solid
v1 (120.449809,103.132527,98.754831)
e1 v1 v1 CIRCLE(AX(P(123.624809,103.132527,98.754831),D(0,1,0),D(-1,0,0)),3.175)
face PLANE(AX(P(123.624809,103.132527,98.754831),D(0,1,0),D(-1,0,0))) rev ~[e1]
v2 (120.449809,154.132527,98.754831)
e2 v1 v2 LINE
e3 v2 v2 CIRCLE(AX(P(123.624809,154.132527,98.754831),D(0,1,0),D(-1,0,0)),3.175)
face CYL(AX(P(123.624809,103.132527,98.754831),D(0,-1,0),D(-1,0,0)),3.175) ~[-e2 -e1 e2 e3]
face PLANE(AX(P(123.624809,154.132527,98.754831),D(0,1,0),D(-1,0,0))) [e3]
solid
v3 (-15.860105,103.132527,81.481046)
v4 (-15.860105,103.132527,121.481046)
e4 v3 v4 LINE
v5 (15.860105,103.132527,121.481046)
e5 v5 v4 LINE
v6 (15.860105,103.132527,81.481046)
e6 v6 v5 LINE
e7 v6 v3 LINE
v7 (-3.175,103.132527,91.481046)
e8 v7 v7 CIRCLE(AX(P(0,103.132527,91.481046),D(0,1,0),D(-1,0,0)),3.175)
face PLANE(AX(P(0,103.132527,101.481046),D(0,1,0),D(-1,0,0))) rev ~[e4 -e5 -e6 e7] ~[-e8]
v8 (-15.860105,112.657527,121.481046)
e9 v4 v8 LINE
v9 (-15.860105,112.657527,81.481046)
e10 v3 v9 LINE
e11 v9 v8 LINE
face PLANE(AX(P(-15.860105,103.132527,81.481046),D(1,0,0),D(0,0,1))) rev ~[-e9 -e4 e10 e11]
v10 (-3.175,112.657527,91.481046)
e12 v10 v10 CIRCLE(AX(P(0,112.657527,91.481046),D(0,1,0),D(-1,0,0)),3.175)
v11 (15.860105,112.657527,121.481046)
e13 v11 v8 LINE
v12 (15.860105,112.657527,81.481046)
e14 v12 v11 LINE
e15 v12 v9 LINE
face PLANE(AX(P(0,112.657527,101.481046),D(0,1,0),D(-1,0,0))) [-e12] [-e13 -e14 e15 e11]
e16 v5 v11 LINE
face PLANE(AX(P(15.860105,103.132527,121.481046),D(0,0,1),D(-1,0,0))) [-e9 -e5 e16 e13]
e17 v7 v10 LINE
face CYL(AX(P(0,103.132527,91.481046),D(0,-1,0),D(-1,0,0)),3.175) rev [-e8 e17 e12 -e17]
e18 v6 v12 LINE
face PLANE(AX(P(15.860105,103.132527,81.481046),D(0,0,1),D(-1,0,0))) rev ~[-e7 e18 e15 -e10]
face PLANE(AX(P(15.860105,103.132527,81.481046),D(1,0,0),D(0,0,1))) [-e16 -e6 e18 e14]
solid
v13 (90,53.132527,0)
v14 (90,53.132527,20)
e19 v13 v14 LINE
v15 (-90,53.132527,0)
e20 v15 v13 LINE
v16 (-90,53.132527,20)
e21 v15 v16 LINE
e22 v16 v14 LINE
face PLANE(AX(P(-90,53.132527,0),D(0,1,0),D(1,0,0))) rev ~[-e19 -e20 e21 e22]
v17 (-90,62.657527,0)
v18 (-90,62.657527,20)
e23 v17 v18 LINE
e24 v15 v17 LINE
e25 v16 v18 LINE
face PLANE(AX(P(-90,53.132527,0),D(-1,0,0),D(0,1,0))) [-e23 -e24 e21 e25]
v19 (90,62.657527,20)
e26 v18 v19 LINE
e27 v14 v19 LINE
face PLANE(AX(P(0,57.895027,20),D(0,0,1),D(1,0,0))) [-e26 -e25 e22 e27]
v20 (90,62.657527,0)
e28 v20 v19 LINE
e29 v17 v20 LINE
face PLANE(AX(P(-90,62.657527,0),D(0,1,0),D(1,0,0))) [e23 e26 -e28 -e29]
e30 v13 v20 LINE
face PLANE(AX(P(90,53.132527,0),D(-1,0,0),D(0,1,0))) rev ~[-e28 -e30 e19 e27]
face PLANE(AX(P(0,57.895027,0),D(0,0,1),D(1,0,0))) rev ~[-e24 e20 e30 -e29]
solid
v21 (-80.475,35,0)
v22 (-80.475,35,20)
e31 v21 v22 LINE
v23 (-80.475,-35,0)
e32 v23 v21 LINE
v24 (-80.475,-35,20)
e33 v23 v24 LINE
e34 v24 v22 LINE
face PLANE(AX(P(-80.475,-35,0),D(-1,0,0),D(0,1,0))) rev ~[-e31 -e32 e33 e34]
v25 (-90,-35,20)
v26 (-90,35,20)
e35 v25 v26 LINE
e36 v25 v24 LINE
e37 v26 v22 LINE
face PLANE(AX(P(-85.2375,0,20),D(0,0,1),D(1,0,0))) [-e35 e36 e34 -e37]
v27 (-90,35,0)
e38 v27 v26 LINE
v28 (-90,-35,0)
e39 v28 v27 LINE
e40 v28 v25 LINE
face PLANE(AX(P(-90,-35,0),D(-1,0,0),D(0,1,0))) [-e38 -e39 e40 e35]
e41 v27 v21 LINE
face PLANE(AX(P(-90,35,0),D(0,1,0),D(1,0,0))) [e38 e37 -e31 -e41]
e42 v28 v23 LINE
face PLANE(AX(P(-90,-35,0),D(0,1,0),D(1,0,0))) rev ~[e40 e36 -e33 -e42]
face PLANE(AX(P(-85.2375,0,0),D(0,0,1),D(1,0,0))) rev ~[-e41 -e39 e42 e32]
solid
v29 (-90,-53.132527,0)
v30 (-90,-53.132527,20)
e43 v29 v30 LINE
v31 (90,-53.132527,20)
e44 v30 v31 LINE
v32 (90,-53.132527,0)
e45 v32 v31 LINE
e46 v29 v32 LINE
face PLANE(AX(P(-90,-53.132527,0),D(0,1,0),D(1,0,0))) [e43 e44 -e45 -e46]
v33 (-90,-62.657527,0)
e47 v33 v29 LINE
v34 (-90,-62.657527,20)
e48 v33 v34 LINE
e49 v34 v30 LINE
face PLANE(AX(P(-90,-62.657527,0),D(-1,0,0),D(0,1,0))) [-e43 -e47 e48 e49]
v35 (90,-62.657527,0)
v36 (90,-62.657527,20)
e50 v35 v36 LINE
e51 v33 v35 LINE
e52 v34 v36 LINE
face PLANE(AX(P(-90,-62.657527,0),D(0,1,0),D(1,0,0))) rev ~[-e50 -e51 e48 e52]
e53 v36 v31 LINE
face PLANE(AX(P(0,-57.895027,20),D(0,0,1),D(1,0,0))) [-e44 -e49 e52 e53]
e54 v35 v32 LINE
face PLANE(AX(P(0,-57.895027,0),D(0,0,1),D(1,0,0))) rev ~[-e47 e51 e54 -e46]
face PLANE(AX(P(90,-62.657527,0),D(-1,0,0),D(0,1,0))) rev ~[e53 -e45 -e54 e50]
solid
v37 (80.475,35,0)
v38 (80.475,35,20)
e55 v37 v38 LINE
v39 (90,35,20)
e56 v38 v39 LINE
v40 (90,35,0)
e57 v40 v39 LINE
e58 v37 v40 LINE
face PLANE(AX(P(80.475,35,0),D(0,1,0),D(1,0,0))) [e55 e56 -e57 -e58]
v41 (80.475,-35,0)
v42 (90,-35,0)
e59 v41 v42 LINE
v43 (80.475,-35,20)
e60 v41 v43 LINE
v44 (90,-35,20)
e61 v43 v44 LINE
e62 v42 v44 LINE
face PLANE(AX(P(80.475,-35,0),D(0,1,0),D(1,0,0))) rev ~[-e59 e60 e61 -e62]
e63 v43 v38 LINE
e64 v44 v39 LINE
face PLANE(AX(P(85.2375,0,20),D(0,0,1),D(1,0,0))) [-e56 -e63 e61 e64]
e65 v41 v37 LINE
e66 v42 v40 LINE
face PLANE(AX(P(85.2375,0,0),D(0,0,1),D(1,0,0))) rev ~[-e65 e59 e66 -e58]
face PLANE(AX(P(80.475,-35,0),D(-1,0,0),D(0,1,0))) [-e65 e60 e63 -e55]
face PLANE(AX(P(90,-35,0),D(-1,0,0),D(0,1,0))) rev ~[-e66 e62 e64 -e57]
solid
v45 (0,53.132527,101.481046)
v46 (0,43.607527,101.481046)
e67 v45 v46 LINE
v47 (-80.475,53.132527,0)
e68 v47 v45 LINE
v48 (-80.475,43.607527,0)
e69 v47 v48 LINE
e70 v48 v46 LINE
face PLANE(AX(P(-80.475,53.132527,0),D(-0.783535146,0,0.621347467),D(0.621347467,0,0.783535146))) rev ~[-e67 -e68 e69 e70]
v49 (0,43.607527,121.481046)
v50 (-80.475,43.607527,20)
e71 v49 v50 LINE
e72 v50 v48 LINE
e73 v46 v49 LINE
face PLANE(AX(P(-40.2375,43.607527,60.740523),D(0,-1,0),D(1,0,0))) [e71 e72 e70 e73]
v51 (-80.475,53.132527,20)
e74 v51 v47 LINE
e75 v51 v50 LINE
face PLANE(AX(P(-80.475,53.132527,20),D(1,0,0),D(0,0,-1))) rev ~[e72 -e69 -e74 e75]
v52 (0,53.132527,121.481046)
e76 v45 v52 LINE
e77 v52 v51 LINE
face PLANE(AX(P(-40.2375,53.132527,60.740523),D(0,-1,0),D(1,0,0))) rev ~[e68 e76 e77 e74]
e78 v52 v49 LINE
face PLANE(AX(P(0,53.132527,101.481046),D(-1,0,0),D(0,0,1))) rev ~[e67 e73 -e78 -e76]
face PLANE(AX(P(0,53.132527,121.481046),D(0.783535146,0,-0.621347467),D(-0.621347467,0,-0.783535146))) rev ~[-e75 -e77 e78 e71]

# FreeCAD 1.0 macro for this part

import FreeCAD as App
import Part
import Sketcher

V = App.Vector


def add_polygon(sketch, points):
    """Adds a closed chain of lines whose ends are joined by coincident constraints."""
    first, n = sketch.GeometryCount, len(points)
    for a, b in zip(points, points[1:] + points[:1]):
        sketch.addGeometry(Part.LineSegment(App.Vector(*a, 0), App.Vector(*b, 0)), False)
    for i in range(n):
        sketch.addConstraint(Sketcher.Constraint("Coincident", first + i, 2, first + (i + 1) % n, 1))

doc = App.newDocument("Part")
body = doc.addObject("PartDesign::Body", "Body")

sketch1 = body.newObject("Sketcher::SketchObject", "Sketch")
sketch1.AttachmentSupport = (doc.getObject("XY_Plane"), [""])
sketch1.MapMode = "FlatFace"
add_polygon(sketch1, [(-90, 62.657527), (-90, 53.132527), (90, 53.132527), (90, 62.657527)])
sketch1.addConstraint([
    Sketcher.Constraint("Vertical", 0),
    Sketcher.Constraint("Horizontal", 1),
    Sketcher.Constraint("Vertical", 2),
    Sketcher.Constraint("Horizontal", 3),
    Sketcher.Constraint("DistanceX", 1, 1, 1, 2, 180.0),
    Sketcher.Constraint("DistanceX", 0, 2, -1, 1, 90.0),
    Sketcher.Constraint("DistanceY", 0, 2, 0, 1, 9.525),
    Sketcher.Constraint("DistanceY", -1, 1, 0, 2, 53.132527),
])
pad1 = body.newObject("PartDesign::Pad", "Pad")
pad1.Profile = sketch1
pad1.Length = 20
body2 = doc.addObject("PartDesign::Body", "Body001")

sketch2 = body2.newObject("Sketcher::SketchObject", "Sketch001")
sketch2.AttachmentSupport = (doc.getObject("XY_Plane001"), [""])
sketch2.MapMode = "FlatFace"
add_polygon(sketch2, [(-90, 35), (-90, -35), (-80.475, -35), (-80.475, 35)])
sketch2.addConstraint([
    Sketcher.Constraint("Vertical", 0),
    Sketcher.Constraint("Horizontal", 1),
    Sketcher.Constraint("Vertical", 2),
    Sketcher.Constraint("Horizontal", 3),
    Sketcher.Constraint("DistanceY", 0, 2, 0, 1, 70.0),
    Sketcher.Constraint("DistanceX", 0, 2, -1, 1, 90.0),
    Sketcher.Constraint("DistanceY", 0, 2, -1, 1, 35.0),
    Sketcher.Constraint("DistanceX", 1, 1, 1, 2, 9.525),
])
pad2 = body2.newObject("PartDesign::Pad", "Pad001")
pad2.Profile = sketch2
pad2.Length = 20
body3 = doc.addObject("PartDesign::Body", "Body002")

sketch3 = body3.newObject("Sketcher::SketchObject", "Sketch002")
sketch3.AttachmentSupport = (doc.getObject("XY_Plane002"), [""])
sketch3.MapMode = "FlatFace"
add_polygon(sketch3, [(-90, -53.132527), (-90, -62.657527), (90, -62.657527), (90, -53.132527)])
sketch3.addConstraint([
    Sketcher.Constraint("Vertical", 0),
    Sketcher.Constraint("Horizontal", 1),
    Sketcher.Constraint("Vertical", 2),
    Sketcher.Constraint("Horizontal", 3),
    Sketcher.Constraint("DistanceX", 1, 1, 1, 2, 180.0),
    Sketcher.Constraint("DistanceX", 0, 2, -1, 1, 90.0),
    Sketcher.Constraint("DistanceY", 0, 2, 0, 1, 9.525),
    Sketcher.Constraint("DistanceY", 0, 2, -1, 1, 62.657527),
])
pad3 = body3.newObject("PartDesign::Pad", "Pad002")
pad3.Profile = sketch3
pad3.Length = 20
body4 = doc.addObject("PartDesign::Body", "Body003")

sketch4 = body4.newObject("Sketcher::SketchObject", "Sketch003")
sketch4.AttachmentSupport = (doc.getObject("XY_Plane003"), [""])
sketch4.MapMode = "FlatFace"
add_polygon(sketch4, [(80.475, 35), (80.475, -35), (90, -35), (90, 35)])
sketch4.addConstraint([
    Sketcher.Constraint("Vertical", 0),
    Sketcher.Constraint("Horizontal", 1),
    Sketcher.Constraint("Vertical", 2),
    Sketcher.Constraint("Horizontal", 3),
    Sketcher.Constraint("DistanceY", 0, 2, 0, 1, 70.0),
    Sketcher.Constraint("DistanceY", 0, 2, -1, 1, 35.0),
    Sketcher.Constraint("DistanceX", -1, 1, 1, 2, 90.0),
    Sketcher.Constraint("DistanceX", 1, 1, 1, 2, 9.525),
])
pad4 = body4.newObject("PartDesign::Pad", "Pad003")
pad4.Profile = sketch4
pad4.Length = 20
body5 = doc.addObject("PartDesign::Body", "Body004")

sketch5 = body5.newObject("Sketcher::SketchObject", "Sketch004")
sketch5.AttachmentSupport = (doc.getObject("XZ_Plane004"), [""])
sketch5.MapMode = "FlatFace"
sketch5.AttachmentOffset = App.Placement(V(0, 0, -53.132527), App.Rotation())
add_polygon(sketch5, [(0, 121.481046), (-80.475, 20), (-80.475, 0), (0, 101.481046)])
sketch5.addConstraint([
    Sketcher.Constraint("Vertical", 1),
    Sketcher.Constraint("Vertical", 3),
    Sketcher.Constraint("PointOnObject", 1, 2, -1),
    Sketcher.Constraint("PointOnObject", 2, 2, -2),
    Sketcher.Constraint("Parallel", 0, 2),
    Sketcher.Constraint("DistanceY", 1, 2, 1, 1, 20.0),
    Sketcher.Constraint("DistanceX", 0, 2, -1, 1, 80.475),
    Sketcher.Constraint("Distance", 0, 129.516904),
])
pad5 = body5.newObject("PartDesign::Pad", "Pad004")
pad5.Profile = sketch5
pad5.Length = 9.525
body6 = doc.addObject("PartDesign::Body", "Body005")

sketch6 = body6.newObject("Sketcher::SketchObject", "Sketch005")
sketch6.AttachmentSupport = (doc.getObject("XZ_Plane005"), [""])
sketch6.MapMode = "FlatFace"
sketch6.AttachmentOffset = App.Placement(V(0, 0, -103.132527), App.Rotation())
add_polygon(sketch6, [(15.860105, 121.481046), (15.860105, 81.481046), (-15.860105, 81.481046), (-15.860105, 121.481046)])
sketch6.addGeometry(Part.Circle(V(0, 91.481046, 0), V(0, 0, 1), 3.175), False)
sketch6.addConstraint([
    Sketcher.Constraint("Vertical", 0),
    Sketcher.Constraint("Horizontal", 1),
    Sketcher.Constraint("Vertical", 2),
    Sketcher.Constraint("Horizontal", 3),
    Sketcher.Constraint("PointOnObject", 4, 3, -2),
    Sketcher.Constraint("Diameter", 4, 6.35),
    Sketcher.Constraint("DistanceY", 0, 2, 0, 1, 40.0),
    Sketcher.Constraint("DistanceY", 0, 2, 4, 3, 10.0),
    Sketcher.Constraint("DistanceX", 1, 2, 1, 1, 31.720209),
    Sketcher.Constraint("DistanceY", -1, 1, 4, 3, 91.481046),
    Sketcher.Constraint("DistanceX", -1, 1, 0, 2, 15.860105),
])
pad6 = body6.newObject("PartDesign::Pad", "Pad005")
pad6.Profile = sketch6
pad6.Length = 9.525
pad6.Reversed = True
body7 = doc.addObject("PartDesign::Body", "Body006")

sketch7 = body7.newObject("Sketcher::SketchObject", "Sketch006")
sketch7.AttachmentSupport = (doc.getObject("XZ_Plane006"), [""])
sketch7.MapMode = "FlatFace"
sketch7.AttachmentOffset = App.Placement(V(0, 0, -103.132527), App.Rotation())
sketch7.addGeometry(Part.Circle(V(123.624809, 98.754831, 0), V(0, 0, 1), 3.175), False)
sketch7.addConstraint([
    Sketcher.Constraint("Diameter", 0, 6.35),
    Sketcher.Constraint("DistanceX", -1, 1, 0, 3, 123.624809),
    Sketcher.Constraint("DistanceY", -1, 1, 0, 3, 98.754831),
])
pad7 = body7.newObject("PartDesign::Pad", "Pad006")
pad7.Profile = sketch7
pad7.Length = 51
pad7.Reversed = True
body8 = doc.addObject("PartDesign::Body", "Body007")
doc.recompute()

mirroring = doc.addObject("Part::Mirroring", "Mirroring")
mirroring.Source = body5
mirroring.Base = V(0, 48.370027, 111.481046)
mirroring.Normal = V(1, 0, 0)
body8.BaseFeature = mirroring
doc.recompute()
body8.Visibility = False
mirroring.Visibility = False

doc.recompute()
